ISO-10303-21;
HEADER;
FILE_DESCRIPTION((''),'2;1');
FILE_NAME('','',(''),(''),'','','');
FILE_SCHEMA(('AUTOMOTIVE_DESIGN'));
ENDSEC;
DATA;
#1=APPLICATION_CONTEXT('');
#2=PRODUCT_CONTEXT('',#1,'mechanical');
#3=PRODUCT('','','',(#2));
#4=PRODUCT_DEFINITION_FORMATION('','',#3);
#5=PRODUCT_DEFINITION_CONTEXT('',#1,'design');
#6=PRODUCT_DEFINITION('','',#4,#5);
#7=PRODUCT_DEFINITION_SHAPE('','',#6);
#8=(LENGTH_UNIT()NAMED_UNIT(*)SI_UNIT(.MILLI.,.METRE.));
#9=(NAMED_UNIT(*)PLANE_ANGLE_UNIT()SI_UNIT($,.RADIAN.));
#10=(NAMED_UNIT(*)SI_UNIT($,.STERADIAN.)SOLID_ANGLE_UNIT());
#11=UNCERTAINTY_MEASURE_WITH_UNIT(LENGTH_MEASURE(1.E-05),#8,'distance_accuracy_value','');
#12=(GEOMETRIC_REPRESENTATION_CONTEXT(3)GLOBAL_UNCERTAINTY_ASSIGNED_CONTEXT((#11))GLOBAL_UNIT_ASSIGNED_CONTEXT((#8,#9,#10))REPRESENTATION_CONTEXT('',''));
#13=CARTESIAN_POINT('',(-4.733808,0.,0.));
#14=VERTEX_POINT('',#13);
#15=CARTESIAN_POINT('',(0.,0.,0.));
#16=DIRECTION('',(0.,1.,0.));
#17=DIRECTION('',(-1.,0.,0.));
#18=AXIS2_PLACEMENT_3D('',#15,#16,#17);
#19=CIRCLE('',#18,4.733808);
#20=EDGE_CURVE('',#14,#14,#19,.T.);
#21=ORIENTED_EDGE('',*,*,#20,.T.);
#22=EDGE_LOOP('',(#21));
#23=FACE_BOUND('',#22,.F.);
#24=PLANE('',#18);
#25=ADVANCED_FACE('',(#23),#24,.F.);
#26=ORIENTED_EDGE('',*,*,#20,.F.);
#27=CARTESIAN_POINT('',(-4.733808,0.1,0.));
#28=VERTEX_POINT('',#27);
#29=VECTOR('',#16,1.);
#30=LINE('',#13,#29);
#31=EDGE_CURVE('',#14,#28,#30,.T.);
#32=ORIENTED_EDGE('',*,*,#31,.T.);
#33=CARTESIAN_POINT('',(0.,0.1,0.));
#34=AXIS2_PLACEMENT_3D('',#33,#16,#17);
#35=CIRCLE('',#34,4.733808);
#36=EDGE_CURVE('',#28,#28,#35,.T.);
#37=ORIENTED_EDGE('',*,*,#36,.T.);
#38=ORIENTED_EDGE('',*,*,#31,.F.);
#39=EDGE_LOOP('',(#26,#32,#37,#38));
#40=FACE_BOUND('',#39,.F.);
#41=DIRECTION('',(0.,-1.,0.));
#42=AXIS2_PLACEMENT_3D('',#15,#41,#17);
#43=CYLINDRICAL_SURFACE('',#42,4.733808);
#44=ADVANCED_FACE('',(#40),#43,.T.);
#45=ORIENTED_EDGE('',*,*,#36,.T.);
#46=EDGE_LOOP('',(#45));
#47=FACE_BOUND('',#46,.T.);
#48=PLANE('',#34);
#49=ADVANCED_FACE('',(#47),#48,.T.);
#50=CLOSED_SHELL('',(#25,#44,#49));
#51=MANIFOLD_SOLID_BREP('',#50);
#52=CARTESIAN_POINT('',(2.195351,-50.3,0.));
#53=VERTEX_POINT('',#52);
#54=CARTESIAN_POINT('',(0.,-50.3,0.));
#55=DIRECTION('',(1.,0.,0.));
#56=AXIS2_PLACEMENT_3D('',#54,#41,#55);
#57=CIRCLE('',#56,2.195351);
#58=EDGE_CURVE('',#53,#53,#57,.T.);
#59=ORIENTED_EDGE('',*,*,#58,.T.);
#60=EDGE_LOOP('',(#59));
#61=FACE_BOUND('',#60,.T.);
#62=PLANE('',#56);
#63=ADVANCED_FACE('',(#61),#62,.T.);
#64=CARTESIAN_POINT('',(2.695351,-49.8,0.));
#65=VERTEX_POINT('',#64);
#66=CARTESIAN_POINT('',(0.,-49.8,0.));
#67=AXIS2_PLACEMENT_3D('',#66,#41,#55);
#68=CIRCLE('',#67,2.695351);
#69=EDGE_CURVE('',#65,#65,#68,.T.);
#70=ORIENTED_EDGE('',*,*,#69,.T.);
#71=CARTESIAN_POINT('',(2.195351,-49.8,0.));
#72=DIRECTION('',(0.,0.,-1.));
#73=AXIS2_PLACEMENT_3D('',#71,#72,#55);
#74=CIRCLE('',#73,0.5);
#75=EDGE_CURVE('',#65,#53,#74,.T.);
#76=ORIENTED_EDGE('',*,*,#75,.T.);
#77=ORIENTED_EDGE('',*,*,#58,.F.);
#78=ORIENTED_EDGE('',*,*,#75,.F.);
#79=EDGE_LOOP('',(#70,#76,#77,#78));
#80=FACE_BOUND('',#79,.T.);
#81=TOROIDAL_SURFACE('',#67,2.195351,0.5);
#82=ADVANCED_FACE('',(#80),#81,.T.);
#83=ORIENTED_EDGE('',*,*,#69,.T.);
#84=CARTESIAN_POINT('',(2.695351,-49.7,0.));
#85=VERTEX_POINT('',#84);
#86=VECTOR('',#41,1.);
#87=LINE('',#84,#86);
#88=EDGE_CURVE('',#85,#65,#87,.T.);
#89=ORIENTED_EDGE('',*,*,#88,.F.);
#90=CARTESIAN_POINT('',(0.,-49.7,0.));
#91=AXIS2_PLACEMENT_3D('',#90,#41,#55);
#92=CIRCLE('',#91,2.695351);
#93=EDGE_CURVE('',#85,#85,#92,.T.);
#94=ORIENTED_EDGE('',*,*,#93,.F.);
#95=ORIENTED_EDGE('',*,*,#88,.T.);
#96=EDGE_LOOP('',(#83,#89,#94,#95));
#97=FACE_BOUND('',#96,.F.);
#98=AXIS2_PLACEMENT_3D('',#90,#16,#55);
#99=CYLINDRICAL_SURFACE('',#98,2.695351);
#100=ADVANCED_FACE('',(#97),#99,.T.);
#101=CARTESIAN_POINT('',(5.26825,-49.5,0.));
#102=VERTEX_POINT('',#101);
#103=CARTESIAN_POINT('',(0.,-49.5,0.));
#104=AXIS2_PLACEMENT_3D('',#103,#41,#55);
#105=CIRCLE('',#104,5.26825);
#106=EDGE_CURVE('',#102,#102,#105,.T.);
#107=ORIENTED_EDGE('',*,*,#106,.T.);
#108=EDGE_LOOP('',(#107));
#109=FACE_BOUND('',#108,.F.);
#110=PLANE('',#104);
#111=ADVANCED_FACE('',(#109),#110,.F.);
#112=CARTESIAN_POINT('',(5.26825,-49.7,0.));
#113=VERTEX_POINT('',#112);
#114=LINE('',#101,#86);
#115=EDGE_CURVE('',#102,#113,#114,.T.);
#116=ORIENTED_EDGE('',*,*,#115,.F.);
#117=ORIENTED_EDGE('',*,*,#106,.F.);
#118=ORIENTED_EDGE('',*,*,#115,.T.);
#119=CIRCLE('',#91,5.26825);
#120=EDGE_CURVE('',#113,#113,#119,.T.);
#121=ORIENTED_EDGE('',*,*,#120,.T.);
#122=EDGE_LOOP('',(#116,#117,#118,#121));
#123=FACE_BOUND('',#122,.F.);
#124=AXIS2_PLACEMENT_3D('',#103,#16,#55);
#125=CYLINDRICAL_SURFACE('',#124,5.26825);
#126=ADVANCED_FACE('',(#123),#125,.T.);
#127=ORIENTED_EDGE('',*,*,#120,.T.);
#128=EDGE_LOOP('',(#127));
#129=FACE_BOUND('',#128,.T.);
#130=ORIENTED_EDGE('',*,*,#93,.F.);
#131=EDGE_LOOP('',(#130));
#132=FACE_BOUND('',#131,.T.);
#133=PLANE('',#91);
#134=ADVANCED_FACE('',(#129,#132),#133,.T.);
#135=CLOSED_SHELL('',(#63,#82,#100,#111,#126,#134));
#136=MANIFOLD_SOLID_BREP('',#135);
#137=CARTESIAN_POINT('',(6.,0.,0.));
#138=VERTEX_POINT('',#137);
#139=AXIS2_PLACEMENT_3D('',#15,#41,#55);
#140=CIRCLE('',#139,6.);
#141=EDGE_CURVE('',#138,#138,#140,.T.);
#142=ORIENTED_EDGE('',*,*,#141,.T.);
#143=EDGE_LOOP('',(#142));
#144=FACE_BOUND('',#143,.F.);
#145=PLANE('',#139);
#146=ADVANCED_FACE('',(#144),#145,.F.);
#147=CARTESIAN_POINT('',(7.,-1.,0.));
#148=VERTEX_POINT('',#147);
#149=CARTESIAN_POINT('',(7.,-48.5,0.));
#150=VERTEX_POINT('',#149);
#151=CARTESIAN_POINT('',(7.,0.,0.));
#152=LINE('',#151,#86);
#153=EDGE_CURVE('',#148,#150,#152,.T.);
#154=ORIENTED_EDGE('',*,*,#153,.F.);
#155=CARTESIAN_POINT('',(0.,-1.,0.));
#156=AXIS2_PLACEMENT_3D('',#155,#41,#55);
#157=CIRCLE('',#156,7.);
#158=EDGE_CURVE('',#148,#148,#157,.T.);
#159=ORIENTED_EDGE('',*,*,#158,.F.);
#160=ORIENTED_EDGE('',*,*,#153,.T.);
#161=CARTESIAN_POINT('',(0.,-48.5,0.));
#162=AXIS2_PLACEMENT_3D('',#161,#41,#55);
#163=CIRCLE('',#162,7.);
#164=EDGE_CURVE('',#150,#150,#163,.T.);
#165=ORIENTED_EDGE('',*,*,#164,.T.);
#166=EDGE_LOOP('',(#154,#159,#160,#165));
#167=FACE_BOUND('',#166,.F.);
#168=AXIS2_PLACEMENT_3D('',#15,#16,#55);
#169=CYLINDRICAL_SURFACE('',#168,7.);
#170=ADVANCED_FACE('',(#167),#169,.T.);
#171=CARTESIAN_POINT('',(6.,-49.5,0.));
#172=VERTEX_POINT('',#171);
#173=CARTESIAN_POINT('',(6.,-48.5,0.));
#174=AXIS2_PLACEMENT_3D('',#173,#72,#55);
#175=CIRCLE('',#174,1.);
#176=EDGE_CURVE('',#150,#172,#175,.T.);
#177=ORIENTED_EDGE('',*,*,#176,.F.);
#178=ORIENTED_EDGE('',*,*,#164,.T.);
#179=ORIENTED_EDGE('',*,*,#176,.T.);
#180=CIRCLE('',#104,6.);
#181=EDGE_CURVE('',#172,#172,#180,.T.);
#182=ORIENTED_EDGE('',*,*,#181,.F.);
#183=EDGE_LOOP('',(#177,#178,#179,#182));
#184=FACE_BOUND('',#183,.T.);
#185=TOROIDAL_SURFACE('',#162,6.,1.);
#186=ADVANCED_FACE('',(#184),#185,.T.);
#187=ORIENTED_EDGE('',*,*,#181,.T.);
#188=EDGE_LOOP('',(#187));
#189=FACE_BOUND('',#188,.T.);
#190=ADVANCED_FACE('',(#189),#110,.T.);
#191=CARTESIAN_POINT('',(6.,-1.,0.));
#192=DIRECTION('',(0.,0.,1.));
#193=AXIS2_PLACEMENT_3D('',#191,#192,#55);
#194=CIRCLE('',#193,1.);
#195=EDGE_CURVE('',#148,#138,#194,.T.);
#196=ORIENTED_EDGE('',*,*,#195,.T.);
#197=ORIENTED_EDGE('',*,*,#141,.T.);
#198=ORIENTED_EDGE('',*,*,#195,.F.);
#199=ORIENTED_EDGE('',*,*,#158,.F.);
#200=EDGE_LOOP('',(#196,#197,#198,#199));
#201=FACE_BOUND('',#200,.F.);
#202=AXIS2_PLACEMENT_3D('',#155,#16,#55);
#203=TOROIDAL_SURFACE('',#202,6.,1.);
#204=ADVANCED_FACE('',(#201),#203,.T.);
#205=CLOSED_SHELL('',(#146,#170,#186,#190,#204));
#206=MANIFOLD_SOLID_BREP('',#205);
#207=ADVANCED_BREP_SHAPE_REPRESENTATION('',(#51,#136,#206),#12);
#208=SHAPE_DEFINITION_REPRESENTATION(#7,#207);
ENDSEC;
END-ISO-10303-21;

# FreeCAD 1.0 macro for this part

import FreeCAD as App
import Part
import Sketcher

V = App.Vector
Q = App.Units.Quantity


def edges_at(feature, points):
    """Names of the edges that pass closest to the given points."""
    edges = feature.Shape.Edges
    near = lambda p: min(range(len(edges)), key=lambda i: edges[i].distToShape(Part.Vertex(*p))[0])
    return sorted({f"Edge{near(p) + 1}" for p in points})

doc = App.newDocument("Part")
body = doc.addObject("PartDesign::Body", "Body")

sketch1 = doc.addObject("Sketcher::SketchObject", "Sketch")
body.addObject(sketch1)
sketch1.AttachmentSupport = (doc.XZ_Plane, [""])
sketch1.MapMode = "FlatFace"
sketch1.addGeometry(Part.Circle(V(0, 0, 0), V(0, 0, 1), 7), False)
sketch1.addConstraint([
    Sketcher.Constraint("Coincident", 0, 3, -1, 1),
    Sketcher.Constraint("Diameter", 0, Q("14 mm")),
])
pad1 = doc.addObject("PartDesign::Pad", "Pad")
body.addObject(pad1)
pad1.Profile = sketch1
pad1.Length = 49.5
doc.recompute()

fillet = doc.addObject("PartDesign::Fillet", "Fillet")
body.addObject(fillet)
fillet.Base = (pad1, edges_at(pad1, [(-7, -49.5, 0), (-7, 0, 0)]))
fillet.Radius = 1
body2 = doc.addObject("PartDesign::Body", "Body001")

sketch2 = doc.addObject("Sketcher::SketchObject", "Sketch001")
body2.addObject(sketch2)
sketch2.AttachmentSupport = (doc.getObject("XZ_Plane001"), [""])
sketch2.MapMode = "FlatFace"
sketch2.AttachmentOffset = App.Placement(V(0, 0, 49.5), App.Rotation())
sketch2.addGeometry(Part.Circle(V(0, 0, 0), V(0, 0, 1), 5.26825), False)
sketch2.addConstraint([
    Sketcher.Constraint("Coincident", 0, 3, -1, 1),
    Sketcher.Constraint("Diameter", 0, Q("10.5365 mm")),
])
pad2 = doc.addObject("PartDesign::Pad", "Pad001")
body2.addObject(pad2)
pad2.Profile = sketch2
pad2.Length = 0.2

sketch3 = doc.addObject("Sketcher::SketchObject", "Sketch002")
body2.addObject(sketch3)
sketch3.AttachmentSupport = (doc.getObject("XZ_Plane001"), [""])
sketch3.MapMode = "FlatFace"
sketch3.AttachmentOffset = App.Placement(V(0, 0, 49.7), App.Rotation())
sketch3.addGeometry(Part.Circle(V(0, 0, 0), V(0, 0, 1), 2.695351), False)
sketch3.addConstraint([
    Sketcher.Constraint("Coincident", 0, 3, -1, 1),
    Sketcher.Constraint("Diameter", 0, Q("5.390702 mm")),
])
pad3 = doc.addObject("PartDesign::Pad", "Pad002")
body2.addObject(pad3)
pad3.Profile = sketch3
pad3.Length = 0.6
doc.recompute()

fillet2 = doc.addObject("PartDesign::Fillet", "Fillet001")
body2.addObject(fillet2)
fillet2.Base = (pad3, edges_at(pad3, [(-2.695, -50.3, 0)]))
fillet2.Radius = 0.5
body3 = doc.addObject("PartDesign::Body", "Body002")

sketch4 = doc.addObject("Sketcher::SketchObject", "Sketch003")
body3.addObject(sketch4)
sketch4.AttachmentSupport = (doc.getObject("XZ_Plane002"), [""])
sketch4.MapMode = "FlatFace"
sketch4.addGeometry(Part.Circle(V(0, 0, 0), V(0, 0, 1), 4.733808), False)
sketch4.addConstraint([
    Sketcher.Constraint("Coincident", 0, 3, -1, 1),
    Sketcher.Constraint("Diameter", 0, Q("9.467616 mm")),
])
pad4 = doc.addObject("PartDesign::Pad", "Pad003")
body3.addObject(pad4)
pad4.Profile = sketch4
pad4.Length = 0.1
pad4.Reversed = True

doc.recompute()
